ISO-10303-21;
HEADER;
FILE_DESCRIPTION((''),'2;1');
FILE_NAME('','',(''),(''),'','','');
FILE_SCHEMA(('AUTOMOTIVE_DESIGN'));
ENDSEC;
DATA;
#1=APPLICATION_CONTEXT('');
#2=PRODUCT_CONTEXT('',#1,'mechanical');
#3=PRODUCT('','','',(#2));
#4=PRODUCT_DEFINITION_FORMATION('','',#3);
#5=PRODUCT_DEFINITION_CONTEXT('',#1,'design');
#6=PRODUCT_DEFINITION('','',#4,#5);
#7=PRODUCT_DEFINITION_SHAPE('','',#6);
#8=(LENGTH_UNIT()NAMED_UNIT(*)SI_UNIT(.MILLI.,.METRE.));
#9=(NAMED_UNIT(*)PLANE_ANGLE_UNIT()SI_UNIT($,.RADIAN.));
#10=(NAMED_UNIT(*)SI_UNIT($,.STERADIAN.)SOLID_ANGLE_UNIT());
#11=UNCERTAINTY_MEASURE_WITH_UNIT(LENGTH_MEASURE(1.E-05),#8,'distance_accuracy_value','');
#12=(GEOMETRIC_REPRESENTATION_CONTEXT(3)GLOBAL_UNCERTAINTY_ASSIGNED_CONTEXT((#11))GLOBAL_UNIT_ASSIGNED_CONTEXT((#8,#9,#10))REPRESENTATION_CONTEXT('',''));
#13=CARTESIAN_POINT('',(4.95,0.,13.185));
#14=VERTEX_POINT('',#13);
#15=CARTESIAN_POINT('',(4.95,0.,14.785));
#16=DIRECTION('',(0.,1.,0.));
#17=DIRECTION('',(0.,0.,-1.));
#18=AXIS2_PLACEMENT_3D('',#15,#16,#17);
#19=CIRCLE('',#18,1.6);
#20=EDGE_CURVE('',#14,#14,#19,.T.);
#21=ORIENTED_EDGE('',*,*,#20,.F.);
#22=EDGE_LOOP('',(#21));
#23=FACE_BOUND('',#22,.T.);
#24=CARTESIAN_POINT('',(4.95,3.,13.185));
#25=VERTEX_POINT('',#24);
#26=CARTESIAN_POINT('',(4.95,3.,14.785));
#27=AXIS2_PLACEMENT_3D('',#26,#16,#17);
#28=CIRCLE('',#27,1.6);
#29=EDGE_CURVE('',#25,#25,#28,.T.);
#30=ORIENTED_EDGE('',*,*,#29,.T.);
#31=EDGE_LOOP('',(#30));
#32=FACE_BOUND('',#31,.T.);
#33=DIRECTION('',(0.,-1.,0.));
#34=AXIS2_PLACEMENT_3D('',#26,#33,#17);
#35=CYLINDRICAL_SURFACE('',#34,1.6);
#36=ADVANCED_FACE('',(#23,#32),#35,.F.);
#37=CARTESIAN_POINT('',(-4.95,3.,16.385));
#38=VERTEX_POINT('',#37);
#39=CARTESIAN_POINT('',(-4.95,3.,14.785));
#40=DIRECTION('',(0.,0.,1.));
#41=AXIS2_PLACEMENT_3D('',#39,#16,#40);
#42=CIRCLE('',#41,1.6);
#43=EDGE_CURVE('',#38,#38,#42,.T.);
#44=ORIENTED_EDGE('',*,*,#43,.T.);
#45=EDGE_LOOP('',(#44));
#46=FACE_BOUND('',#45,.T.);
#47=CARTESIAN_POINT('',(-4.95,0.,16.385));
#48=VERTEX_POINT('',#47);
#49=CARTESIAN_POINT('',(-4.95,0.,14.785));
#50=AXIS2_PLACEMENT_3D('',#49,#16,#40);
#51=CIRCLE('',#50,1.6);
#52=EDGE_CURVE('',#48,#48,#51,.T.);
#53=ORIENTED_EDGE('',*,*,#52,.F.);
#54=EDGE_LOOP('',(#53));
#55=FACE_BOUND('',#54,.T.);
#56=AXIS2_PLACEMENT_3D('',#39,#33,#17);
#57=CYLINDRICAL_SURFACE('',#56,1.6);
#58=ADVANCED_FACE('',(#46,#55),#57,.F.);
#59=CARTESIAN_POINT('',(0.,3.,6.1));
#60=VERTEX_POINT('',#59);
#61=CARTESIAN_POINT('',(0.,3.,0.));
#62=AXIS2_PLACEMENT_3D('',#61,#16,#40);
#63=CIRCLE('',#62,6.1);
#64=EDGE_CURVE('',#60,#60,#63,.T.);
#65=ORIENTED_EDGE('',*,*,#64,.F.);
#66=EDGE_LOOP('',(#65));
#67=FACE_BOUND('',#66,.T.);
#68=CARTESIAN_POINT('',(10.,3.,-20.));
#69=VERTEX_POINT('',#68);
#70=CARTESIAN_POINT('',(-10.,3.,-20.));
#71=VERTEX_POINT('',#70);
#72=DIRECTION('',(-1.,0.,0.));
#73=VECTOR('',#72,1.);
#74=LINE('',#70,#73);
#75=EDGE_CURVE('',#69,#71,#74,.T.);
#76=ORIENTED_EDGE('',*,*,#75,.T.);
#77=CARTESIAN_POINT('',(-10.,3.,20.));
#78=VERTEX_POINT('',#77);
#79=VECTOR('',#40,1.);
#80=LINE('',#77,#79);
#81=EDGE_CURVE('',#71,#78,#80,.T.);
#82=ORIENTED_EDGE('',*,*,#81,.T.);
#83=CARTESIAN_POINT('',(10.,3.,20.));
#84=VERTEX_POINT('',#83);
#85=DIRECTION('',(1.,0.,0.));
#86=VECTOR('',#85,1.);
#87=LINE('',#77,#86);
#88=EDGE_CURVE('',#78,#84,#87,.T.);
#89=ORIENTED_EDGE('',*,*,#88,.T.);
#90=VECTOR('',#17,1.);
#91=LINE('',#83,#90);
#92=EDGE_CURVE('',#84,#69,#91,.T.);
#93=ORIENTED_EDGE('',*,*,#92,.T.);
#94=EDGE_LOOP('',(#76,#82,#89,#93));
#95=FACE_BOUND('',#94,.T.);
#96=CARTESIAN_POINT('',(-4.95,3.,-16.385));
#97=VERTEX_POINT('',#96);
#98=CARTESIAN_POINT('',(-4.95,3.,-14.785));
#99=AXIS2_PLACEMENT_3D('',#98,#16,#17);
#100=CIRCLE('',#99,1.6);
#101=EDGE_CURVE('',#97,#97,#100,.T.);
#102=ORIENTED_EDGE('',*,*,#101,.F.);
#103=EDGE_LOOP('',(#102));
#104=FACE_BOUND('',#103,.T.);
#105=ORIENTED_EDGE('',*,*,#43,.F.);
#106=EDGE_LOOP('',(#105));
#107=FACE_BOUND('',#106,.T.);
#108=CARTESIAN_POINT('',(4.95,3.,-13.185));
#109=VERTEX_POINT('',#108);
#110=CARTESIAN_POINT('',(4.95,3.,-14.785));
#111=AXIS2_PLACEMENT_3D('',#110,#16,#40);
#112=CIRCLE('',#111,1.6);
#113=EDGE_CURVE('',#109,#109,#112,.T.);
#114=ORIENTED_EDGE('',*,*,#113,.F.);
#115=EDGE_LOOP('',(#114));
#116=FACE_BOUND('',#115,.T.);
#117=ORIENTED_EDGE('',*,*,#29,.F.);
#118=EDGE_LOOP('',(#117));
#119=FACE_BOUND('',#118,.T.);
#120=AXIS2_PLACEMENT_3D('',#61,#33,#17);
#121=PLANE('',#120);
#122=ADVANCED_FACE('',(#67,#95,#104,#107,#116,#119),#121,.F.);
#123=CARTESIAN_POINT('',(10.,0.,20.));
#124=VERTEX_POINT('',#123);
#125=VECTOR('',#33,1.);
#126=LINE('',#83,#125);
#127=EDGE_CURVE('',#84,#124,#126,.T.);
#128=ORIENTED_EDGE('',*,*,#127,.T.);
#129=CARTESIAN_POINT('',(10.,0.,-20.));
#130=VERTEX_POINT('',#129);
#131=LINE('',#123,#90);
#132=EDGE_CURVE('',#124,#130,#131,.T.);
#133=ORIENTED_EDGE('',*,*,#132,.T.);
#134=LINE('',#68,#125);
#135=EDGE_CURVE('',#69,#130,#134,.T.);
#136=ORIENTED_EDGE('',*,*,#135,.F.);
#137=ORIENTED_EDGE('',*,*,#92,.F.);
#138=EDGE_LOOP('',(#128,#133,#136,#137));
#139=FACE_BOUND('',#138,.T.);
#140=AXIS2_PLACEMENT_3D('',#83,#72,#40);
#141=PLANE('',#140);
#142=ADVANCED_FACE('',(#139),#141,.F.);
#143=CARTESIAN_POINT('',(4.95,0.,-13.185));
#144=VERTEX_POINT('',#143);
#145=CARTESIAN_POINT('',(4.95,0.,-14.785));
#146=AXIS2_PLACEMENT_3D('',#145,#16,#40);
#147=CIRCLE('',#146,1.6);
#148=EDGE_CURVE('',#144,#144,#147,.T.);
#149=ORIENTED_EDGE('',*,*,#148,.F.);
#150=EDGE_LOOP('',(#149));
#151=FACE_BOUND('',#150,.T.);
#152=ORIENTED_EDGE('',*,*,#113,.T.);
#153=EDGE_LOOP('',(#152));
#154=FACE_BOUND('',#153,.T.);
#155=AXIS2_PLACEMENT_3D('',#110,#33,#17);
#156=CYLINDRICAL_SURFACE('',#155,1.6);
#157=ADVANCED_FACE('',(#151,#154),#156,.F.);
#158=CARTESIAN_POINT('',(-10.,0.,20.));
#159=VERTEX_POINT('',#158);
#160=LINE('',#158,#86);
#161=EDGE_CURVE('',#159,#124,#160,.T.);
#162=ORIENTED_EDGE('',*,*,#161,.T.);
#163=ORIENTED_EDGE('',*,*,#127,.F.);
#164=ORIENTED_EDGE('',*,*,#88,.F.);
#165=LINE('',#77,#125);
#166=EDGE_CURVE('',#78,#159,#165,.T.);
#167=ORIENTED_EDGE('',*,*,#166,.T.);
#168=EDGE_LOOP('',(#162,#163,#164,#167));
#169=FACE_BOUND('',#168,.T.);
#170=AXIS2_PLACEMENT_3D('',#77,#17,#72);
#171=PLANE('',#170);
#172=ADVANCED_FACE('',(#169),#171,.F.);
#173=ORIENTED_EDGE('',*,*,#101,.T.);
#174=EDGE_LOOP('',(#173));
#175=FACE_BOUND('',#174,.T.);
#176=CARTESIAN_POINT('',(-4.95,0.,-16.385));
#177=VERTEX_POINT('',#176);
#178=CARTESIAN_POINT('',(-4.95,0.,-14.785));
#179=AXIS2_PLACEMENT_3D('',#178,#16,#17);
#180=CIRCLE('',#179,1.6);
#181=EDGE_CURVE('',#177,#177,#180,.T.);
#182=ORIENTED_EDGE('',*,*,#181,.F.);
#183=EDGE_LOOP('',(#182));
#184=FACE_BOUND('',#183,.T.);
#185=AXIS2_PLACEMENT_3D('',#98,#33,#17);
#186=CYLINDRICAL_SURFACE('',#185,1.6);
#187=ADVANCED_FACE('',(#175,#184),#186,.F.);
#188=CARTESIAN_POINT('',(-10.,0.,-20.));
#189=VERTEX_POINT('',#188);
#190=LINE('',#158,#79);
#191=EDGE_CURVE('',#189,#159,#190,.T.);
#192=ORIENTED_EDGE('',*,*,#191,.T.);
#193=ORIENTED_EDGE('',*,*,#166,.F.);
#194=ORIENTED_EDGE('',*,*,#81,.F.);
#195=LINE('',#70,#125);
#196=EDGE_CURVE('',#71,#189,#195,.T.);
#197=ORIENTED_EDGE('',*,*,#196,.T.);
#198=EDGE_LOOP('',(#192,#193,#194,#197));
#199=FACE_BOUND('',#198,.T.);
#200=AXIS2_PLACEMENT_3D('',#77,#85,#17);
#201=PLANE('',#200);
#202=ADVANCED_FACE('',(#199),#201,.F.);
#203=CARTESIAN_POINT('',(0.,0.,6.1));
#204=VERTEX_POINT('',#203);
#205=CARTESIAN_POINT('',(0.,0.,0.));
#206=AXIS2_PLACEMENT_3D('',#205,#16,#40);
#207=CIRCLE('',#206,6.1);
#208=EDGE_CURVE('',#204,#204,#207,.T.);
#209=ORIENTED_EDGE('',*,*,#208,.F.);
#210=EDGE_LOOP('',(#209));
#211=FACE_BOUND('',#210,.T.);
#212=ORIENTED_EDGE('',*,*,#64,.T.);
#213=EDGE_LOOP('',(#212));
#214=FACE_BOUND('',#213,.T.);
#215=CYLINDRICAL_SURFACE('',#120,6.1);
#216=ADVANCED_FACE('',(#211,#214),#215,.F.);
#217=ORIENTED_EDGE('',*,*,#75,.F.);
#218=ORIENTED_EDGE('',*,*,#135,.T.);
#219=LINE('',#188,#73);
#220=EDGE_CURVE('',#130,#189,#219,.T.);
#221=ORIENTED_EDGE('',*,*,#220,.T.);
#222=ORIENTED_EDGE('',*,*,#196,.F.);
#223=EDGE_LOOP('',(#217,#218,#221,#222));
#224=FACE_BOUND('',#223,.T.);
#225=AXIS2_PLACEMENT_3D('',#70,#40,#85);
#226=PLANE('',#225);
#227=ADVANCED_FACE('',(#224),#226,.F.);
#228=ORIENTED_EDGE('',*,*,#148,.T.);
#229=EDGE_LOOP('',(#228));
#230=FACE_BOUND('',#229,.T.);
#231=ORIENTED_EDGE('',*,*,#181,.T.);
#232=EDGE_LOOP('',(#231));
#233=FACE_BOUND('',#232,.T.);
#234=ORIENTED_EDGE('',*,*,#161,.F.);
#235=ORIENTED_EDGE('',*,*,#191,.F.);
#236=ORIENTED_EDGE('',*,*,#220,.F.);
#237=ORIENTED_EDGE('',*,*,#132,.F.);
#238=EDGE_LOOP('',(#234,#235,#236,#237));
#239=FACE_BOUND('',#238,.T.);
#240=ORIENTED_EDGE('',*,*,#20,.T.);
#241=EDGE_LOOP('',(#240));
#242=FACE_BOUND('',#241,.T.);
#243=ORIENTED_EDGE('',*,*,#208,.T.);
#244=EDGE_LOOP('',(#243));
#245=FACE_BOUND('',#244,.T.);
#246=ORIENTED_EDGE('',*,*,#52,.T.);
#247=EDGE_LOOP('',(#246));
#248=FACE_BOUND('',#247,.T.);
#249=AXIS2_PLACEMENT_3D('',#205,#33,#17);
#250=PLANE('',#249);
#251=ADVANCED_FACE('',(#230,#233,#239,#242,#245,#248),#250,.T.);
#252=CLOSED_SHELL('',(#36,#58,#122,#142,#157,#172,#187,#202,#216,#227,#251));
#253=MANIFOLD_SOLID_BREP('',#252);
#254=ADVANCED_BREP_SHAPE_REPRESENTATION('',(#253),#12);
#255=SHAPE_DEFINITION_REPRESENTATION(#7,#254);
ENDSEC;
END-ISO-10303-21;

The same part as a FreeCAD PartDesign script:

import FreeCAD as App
import Part
import Sketcher
from FreeCAD import Vector


def add_polygon(sketch, points):
    """Adds a closed chain of lines whose ends are joined by coincident constraints."""
    first, n = sketch.GeometryCount, len(points)
    for a, b in zip(points, points[1:] + points[:1]):
        sketch.addGeometry(Part.LineSegment(App.Vector(*a, 0), App.Vector(*b, 0)), False)
    for i in range(n):
        sketch.addConstraint(Sketcher.Constraint("Coincident", first + i, 2, first + (i + 1) % n, 1))

doc = App.newDocument("Part")
body = doc.addObject("PartDesign::Body", "Body")

# Sketch on XZ plane
sketch1 = body.newObject("Sketcher::SketchObject", "Sketch")
sketch1.AttachmentSupport = (doc.getObject("XZ_Plane"), [""])
sketch1.MapMode = "FlatFace"
add_polygon(sketch1, [(-10, -20), (-10, 20), (10, 20), (10, -20)])  # lines 0-3
sketch1.addGeometry(Part.Circle(Vector(-5, 14.8, 0), Vector(0, 0, 1), 1.6), False)  # 4
sketch1.addGeometry(Part.Circle(Vector(5, 14.8, 0), Vector(0, 0, 1), 1.6), False)  # 5
sketch1.addGeometry(Part.Circle(Vector(-5, -14.8, 0), Vector(0, 0, 1), 1.6), False)  # 6
sketch1.addGeometry(Part.Circle(Vector(0, 0, 0), Vector(0, 0, 1), 6.1), False)  # 7
sketch1.addGeometry(Part.Circle(Vector(5, -14.8, 0), Vector(0, 0, 1), 1.6), False)  # 8
sketch1.addConstraint([
    Sketcher.Constraint("Vertical", 0),
    Sketcher.Constraint("Horizontal", 1),
    Sketcher.Constraint("Vertical", 2),
    Sketcher.Constraint("Horizontal", 3),
    Sketcher.Constraint("Coincident", 7, 3, -1, 1),
    Sketcher.Constraint("Equal", 4, 5),
    Sketcher.Constraint("Equal", 5, 6),
    Sketcher.Constraint("Equal", 6, 8),
    Sketcher.Constraint("Symmetric", 5, 3, 6, 3, -1, 1),
    Sketcher.Constraint("Symmetric", 4, 3, 8, 3, -1, 1),
    Sketcher.Constraint("Symmetric", 0, 2, 2, 2, -1, 1),
    Sketcher.Constraint("Symmetric", 4, 3, 5, 3, -2),
    Sketcher.Constraint("Diameter", 4, 3.2),
    Sketcher.Constraint("Diameter", 7, 12.2),
    Sketcher.Constraint("DistanceX", 1, 1, 1, 2, 20.0),
    Sketcher.Constraint("DistanceY", 0, 1, 0, 2, 40.0),
    Sketcher.Constraint("DistanceX", 4, 3, 5, 3, 9.9),
    Sketcher.Constraint("DistanceY", 6, 3, 4, 3, 29.57),
])
pad1 = body.newObject("PartDesign::Pad", "Pad")
pad1.Profile = sketch1
pad1.Length = 3
pad1.Reversed = True

doc.recompute()
